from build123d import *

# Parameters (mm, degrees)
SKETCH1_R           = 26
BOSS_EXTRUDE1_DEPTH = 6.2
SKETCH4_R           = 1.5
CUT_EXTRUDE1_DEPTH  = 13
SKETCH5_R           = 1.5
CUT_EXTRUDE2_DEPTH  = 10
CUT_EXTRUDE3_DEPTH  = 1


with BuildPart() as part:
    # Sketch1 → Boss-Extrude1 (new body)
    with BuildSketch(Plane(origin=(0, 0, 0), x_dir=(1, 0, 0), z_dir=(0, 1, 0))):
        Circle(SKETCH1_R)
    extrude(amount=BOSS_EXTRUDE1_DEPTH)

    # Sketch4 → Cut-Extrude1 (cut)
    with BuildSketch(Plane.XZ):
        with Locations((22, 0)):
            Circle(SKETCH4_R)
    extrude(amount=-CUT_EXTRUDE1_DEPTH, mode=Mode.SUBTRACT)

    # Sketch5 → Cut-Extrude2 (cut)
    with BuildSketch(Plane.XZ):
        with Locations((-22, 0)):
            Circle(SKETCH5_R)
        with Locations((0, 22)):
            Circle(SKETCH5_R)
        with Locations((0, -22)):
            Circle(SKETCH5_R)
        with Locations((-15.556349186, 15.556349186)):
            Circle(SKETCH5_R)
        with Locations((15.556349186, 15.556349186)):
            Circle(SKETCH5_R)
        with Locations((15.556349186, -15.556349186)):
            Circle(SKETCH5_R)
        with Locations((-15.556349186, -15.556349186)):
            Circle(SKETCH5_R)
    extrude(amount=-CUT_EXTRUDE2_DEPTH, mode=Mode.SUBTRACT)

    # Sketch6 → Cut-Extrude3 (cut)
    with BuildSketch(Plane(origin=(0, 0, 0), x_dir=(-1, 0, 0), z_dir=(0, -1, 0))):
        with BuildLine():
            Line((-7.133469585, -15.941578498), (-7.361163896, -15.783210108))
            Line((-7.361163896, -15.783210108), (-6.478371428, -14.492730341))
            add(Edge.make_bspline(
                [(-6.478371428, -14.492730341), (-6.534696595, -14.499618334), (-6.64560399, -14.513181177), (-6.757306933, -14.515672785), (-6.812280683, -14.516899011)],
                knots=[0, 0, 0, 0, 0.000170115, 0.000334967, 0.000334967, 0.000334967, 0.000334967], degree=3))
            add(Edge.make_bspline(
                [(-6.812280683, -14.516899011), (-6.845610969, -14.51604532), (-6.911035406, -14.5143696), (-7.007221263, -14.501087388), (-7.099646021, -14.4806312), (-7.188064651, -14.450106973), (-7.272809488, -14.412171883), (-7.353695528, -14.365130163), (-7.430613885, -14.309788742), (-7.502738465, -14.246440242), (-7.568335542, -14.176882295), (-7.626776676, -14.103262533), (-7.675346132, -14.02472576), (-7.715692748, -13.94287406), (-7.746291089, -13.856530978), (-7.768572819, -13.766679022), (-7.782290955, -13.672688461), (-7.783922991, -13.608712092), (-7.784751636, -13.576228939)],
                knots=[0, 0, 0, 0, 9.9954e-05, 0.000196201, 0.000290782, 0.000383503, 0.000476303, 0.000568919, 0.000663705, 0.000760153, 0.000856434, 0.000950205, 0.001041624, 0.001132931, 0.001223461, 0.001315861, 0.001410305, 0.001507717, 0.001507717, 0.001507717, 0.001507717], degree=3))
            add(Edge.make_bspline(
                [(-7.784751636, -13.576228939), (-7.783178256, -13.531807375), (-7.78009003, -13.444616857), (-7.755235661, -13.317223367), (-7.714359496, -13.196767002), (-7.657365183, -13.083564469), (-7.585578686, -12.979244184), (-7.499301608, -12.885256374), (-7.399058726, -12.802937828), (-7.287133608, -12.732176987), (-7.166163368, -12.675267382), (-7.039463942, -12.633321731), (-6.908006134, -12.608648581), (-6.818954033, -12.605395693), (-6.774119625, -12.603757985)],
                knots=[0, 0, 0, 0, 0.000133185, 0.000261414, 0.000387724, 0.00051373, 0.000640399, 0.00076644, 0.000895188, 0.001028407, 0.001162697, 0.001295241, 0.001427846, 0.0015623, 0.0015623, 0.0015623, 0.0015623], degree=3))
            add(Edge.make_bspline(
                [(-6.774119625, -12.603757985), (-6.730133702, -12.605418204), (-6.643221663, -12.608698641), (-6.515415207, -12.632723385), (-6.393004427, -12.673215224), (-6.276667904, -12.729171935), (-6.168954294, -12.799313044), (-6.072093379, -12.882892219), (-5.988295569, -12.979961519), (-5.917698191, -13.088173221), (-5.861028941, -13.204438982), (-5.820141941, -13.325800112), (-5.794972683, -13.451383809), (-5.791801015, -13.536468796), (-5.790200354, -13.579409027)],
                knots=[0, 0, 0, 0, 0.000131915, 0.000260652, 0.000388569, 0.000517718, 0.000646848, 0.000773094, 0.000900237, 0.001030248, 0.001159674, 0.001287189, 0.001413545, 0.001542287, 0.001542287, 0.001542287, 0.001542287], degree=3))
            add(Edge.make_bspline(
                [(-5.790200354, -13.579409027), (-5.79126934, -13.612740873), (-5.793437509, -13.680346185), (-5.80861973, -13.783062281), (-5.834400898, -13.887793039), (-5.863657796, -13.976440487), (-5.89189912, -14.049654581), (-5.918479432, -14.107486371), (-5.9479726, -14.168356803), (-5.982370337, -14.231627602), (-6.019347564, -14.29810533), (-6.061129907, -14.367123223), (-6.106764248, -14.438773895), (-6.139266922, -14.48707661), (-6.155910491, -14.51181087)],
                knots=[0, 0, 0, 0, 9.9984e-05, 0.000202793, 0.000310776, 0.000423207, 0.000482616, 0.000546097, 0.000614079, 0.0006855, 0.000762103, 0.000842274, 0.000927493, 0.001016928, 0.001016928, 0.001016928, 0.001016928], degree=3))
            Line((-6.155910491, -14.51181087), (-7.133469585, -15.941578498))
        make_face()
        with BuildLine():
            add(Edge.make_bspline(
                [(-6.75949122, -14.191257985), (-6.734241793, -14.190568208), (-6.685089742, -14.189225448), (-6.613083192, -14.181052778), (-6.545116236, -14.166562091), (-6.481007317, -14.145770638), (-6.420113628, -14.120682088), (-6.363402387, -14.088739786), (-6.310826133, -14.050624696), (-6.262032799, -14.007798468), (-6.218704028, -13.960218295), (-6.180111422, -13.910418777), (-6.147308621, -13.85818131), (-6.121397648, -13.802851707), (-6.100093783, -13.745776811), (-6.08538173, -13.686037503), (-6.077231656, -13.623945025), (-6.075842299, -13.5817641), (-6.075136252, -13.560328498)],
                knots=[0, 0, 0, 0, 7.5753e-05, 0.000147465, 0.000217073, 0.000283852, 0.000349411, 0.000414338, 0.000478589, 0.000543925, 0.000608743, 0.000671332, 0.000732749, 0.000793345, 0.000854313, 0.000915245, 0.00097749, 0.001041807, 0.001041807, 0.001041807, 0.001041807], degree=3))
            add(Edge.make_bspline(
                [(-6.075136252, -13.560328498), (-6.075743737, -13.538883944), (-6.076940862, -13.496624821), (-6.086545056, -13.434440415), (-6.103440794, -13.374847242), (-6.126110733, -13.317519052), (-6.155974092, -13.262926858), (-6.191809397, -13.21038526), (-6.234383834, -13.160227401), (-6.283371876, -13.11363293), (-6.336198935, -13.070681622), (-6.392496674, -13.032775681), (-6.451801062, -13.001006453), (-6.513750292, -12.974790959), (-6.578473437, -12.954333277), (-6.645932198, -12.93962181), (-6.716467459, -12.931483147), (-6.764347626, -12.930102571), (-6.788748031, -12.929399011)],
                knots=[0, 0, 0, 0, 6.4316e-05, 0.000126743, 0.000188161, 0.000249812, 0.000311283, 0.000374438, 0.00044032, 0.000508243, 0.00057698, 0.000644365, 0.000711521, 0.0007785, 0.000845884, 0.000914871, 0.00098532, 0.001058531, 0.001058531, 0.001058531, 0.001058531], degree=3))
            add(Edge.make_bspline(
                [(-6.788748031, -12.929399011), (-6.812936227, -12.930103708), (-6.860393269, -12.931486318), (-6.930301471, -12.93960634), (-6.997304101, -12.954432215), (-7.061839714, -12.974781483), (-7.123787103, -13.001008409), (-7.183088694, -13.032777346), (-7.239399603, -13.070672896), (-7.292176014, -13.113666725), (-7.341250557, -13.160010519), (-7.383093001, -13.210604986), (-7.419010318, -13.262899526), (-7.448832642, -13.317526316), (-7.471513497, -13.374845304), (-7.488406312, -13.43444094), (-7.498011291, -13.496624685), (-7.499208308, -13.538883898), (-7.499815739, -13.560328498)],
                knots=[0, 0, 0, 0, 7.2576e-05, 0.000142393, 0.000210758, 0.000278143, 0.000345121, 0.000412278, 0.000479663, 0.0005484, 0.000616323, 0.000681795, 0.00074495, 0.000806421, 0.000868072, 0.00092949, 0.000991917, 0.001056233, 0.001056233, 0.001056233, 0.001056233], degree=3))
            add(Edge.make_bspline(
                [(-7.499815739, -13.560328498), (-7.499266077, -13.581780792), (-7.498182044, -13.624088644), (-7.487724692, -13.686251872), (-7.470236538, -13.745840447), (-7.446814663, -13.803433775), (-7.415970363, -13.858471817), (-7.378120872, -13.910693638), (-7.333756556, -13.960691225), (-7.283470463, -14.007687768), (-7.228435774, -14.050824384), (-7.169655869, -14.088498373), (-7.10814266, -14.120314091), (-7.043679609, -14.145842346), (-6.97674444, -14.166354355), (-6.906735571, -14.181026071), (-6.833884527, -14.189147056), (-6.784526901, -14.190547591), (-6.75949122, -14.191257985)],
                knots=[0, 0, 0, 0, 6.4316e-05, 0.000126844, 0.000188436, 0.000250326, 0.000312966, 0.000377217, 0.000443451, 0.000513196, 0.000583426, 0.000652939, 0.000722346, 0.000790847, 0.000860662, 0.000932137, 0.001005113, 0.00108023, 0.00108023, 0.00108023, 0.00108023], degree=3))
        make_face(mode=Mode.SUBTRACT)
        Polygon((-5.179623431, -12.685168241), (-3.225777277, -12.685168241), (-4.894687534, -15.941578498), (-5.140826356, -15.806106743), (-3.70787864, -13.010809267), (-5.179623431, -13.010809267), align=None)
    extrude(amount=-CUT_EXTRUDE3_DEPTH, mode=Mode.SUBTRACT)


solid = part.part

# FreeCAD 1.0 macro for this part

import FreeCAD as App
import Part
import Sketcher
from FreeCAD import Vector
Q = App.Units.Quantity

doc = App.newDocument("Part")
body = doc.addObject("PartDesign::Body", "Body")

sketch1 = body.newObject("Sketcher::SketchObject", "Sketch")
sketch1.AttachmentSupport = (doc.getObject("XZ_Plane"), [""])
sketch1.MapMode = "FlatFace"
sketch1.addGeometry(Part.Circle(Vector(0, 0, 0), Vector(0, 0, 1), 26), False)
sketch1.addConstraint([
    Sketcher.Constraint("Coincident", 0, 3, -1, 1),
    Sketcher.Constraint("Diameter", 0, Q("52 mm")),
])
pad1 = body.newObject("PartDesign::Pad", "Pad")
pad1.Profile = sketch1
pad1.Length = 6.2
pad1.Reversed = True

sketch2 = body.newObject("Sketcher::SketchObject", "Sketch001")
sketch2.AttachmentSupport = (doc.getObject("XZ_Plane"), [""])
sketch2.MapMode = "FlatFace"
sketch2.addGeometry(Part.Circle(Vector(22, 0, 0), Vector(0, 0, 1), 1.5), False)
sketch2.addConstraint([
    Sketcher.Constraint("PointOnObject", 0, 3, -1),
    Sketcher.Constraint("Diameter", 0, Q("3 mm")),
    Sketcher.Constraint("DistanceX", -1, 1, 0, 3, Q("22 mm")),
])
pocket1 = body.newObject("PartDesign::Pocket", "Pocket")
pocket1.Profile = sketch2
pocket1.Length = 13

sketch3 = body.newObject("Sketcher::SketchObject", "Sketch002")
sketch3.AttachmentSupport = (doc.getObject("XZ_Plane"), [""])
sketch3.MapMode = "FlatFace"
sketch3.addGeometry([
    Part.Circle(Vector(-22, 0, 0), Vector(0, 0, 1), 1.5),
    Part.Circle(Vector(0, 22, 0), Vector(0, 0, 1), 1.5),
    Part.Circle(Vector(0, -22, 0), Vector(0, 0, 1), 1.5),
    Part.Circle(Vector(-15.6, 15.6, 0), Vector(0, 0, 1), 1.5),
    Part.Circle(Vector(15.6, 15.6, 0), Vector(0, 0, 1), 1.5),
    Part.Circle(Vector(15.6, -15.6, 0), Vector(0, 0, 1), 1.5),
    Part.Circle(Vector(-15.6, -15.6, 0), Vector(0, 0, 1), 1.5),
], False)
sketch3.addConstraint([
    Sketcher.Constraint("Equal", 0, 1),
    Sketcher.Constraint("Equal", 1, 2),
    Sketcher.Constraint("Equal", 2, 3),
    Sketcher.Constraint("Equal", 3, 4),
    Sketcher.Constraint("Equal", 4, 5),
    Sketcher.Constraint("Equal", 5, 6),
    Sketcher.Constraint("Symmetric", 1, 3, 2, 3, -1, 1),
    Sketcher.Constraint("Symmetric", 3, 3, 5, 3, -1, 1),
    Sketcher.Constraint("Symmetric", 4, 3, 6, 3, -1, 1),
    Sketcher.Constraint("Symmetric", 3, 3, 4, 3, -2),
    Sketcher.Constraint("PointOnObject", 0, 3, -1),
    Sketcher.Constraint("PointOnObject", 1, 3, -2),
    Sketcher.Constraint("Diameter", 0, Q("3 mm")),
    Sketcher.Constraint("DistanceX", 0, 3, -1, 1, Q("22 mm")),
    Sketcher.Constraint("DistanceY", -1, 1, 1, 3, Q("22 mm")),
    Sketcher.Constraint("DistanceX", 3, 3, 4, 3, Q("31.112698 mm")),
    Sketcher.Constraint("DistanceY", 5, 3, 4, 3, Q("31.112698 mm")),
])
pocket2 = body.newObject("PartDesign::Pocket", "Pocket001")
pocket2.Profile = sketch3
pocket2.Length = 10

sketch4 = body.newObject("Sketcher::SketchObject", "Sketch003")
sketch4.AttachmentSupport = (doc.getObject("XZ_Plane"), [""])
sketch4.MapMode = "FlatFace"
sketch4.addGeometry([
    Part.LineSegment(Vector(7.361164, 15.78321, 0), Vector(7.13347, 15.941578, 0)),
    Part.LineSegment(Vector(7.13347, 15.941578, 0), Vector(6.15591, 14.511811, 0)),
    Part.BSplineCurve([Vector(5.7902, 13.579409, 0), Vector(5.791269, 13.612741, 0), Vector(5.793438, 13.680346, 0), Vector(5.80862, 13.783062, 0), Vector(5.834401, 13.887793, 0), Vector(5.863658, 13.97644, 0), Vector(5.891899, 14.049655, 0), Vector(5.918479, 14.107486, 0), Vector(5.947973, 14.168357, 0), Vector(5.98237, 14.231628, 0), Vector(6.019348, 14.298105, 0), Vector(6.06113, 14.367123, 0), Vector(6.106764, 14.438774, 0), Vector(6.139267, 14.487077, 0), Vector(6.15591, 14.511811, 0)], [4, 1, 1, 1, 1, 1, 1, 1, 1, 1, 1, 1, 4], [0, 0.000099984, 0.000202793, 0.000310776, 0.000423207, 0.000482616, 0.000546097, 0.000614079, 0.0006855, 0.000762103, 0.000842274, 0.000927493, 0.001016928], False, 3, [1, 1, 1, 1, 1, 1, 1, 1, 1, 1, 1, 1, 1, 1, 1], False),
    Part.BSplineCurve([Vector(6.77412, 12.603758, 0), Vector(6.730134, 12.605418, 0), Vector(6.643222, 12.608699, 0), Vector(6.515415, 12.632723, 0), Vector(6.393004, 12.673215, 0), Vector(6.276668, 12.729172, 0), Vector(6.168954, 12.799313, 0), Vector(6.072093, 12.882892, 0), Vector(5.988296, 12.979962, 0), Vector(5.917698, 13.088173, 0), Vector(5.861029, 13.204439, 0), Vector(5.820142, 13.3258, 0), Vector(5.794973, 13.451384, 0), Vector(5.791801, 13.536469, 0), Vector(5.7902, 13.579409, 0)], [4, 1, 1, 1, 1, 1, 1, 1, 1, 1, 1, 1, 4], [0, 0.000131915, 0.000260652, 0.000388569, 0.000517718, 0.000646848, 0.000773094, 0.000900237, 0.001030248, 0.001159674, 0.001287189, 0.001413545, 0.001542287], False, 3, [1, 1, 1, 1, 1, 1, 1, 1, 1, 1, 1, 1, 1, 1, 1], False),
    Part.BSplineCurve([Vector(7.784752, 13.576229, 0), Vector(7.783178, 13.531807, 0), Vector(7.78009, 13.444617, 0), Vector(7.755236, 13.317223, 0), Vector(7.714359, 13.196767, 0), Vector(7.657365, 13.083564, 0), Vector(7.585579, 12.979244, 0), Vector(7.499302, 12.885256, 0), Vector(7.399059, 12.802938, 0), Vector(7.287134, 12.732177, 0), Vector(7.166163, 12.675267, 0), Vector(7.039464, 12.633322, 0), Vector(6.908006, 12.608649, 0), Vector(6.818954, 12.605396, 0), Vector(6.77412, 12.603758, 0)], [4, 1, 1, 1, 1, 1, 1, 1, 1, 1, 1, 1, 4], [0, 0.000133185, 0.000261414, 0.000387724, 0.00051373, 0.000640399, 0.00076644, 0.000895188, 0.001028407, 0.001162697, 0.001295241, 0.001427846, 0.0015623], False, 3, [1, 1, 1, 1, 1, 1, 1, 1, 1, 1, 1, 1, 1, 1, 1], False),
    Part.BSplineCurve([Vector(6.812281, 14.516899, 0), Vector(6.845611, 14.516045, 0), Vector(6.911035, 14.51437, 0), Vector(7.007221, 14.501087, 0), Vector(7.099646, 14.480631, 0), Vector(7.188065, 14.450107, 0), Vector(7.272809, 14.412172, 0), Vector(7.353696, 14.36513, 0), Vector(7.430614, 14.309789, 0), Vector(7.502738, 14.24644, 0), Vector(7.568336, 14.176882, 0), Vector(7.626777, 14.103263, 0), Vector(7.675346, 14.024726, 0), Vector(7.715693, 13.942874, 0), Vector(7.746291, 13.856531, 0), Vector(7.768573, 13.766679, 0), Vector(7.782291, 13.672688, 0), Vector(7.783923, 13.608712, 0), Vector(7.784752, 13.576229, 0)], [4, 1, 1, 1, 1, 1, 1, 1, 1, 1, 1, 1, 1, 1, 1, 1, 4], [0, 0.000099954, 0.000196201, 0.000290782, 0.000383503, 0.000476303, 0.000568919, 0.000663705, 0.000760153, 0.000856434, 0.000950205, 0.001041624, 0.001132931, 0.001223461, 0.001315861, 0.001410305, 0.001507717], False, 3, [1, 1, 1, 1, 1, 1, 1, 1, 1, 1, 1, 1, 1, 1, 1, 1, 1, 1, 1], False),
    Part.BSplineCurve([Vector(6.478371, 14.49273, 0), Vector(6.534697, 14.499618, 0), Vector(6.645604, 14.513181, 0), Vector(6.757307, 14.515673, 0), Vector(6.812281, 14.516899, 0)], [4, 1, 4], [0, 0.000170115, 0.000334967], False, 3, [1, 1, 1, 1, 1], False),
    Part.LineSegment(Vector(6.478371, 14.49273, 0), Vector(7.361164, 15.78321, 0)),
    Part.BSplineCurve([Vector(7.499816, 13.560328, 0), Vector(7.499266, 13.581781, 0), Vector(7.498182, 13.624089, 0), Vector(7.487725, 13.686252, 0), Vector(7.470237, 13.74584, 0), Vector(7.446815, 13.803434, 0), Vector(7.41597, 13.858472, 0), Vector(7.378121, 13.910694, 0), Vector(7.333757, 13.960691, 0), Vector(7.28347, 14.007688, 0), Vector(7.228436, 14.050824, 0), Vector(7.169656, 14.088498, 0), Vector(7.108143, 14.120314, 0), Vector(7.04368, 14.145842, 0), Vector(6.976744, 14.166354, 0), Vector(6.906736, 14.181026, 0), Vector(6.833885, 14.189147, 0), Vector(6.784527, 14.190548, 0), Vector(6.759491, 14.191258, 0)], [4, 1, 1, 1, 1, 1, 1, 1, 1, 1, 1, 1, 1, 1, 1, 1, 4], [0, 0.000064316, 0.000126844, 0.000188436, 0.000250326, 0.000312966, 0.000377217, 0.000443451, 0.000513196, 0.000583426, 0.000652939, 0.000722346, 0.000790847, 0.000860662, 0.000932137, 0.001005113, 0.00108023], False, 3, [1, 1, 1, 1, 1, 1, 1, 1, 1, 1, 1, 1, 1, 1, 1, 1, 1, 1, 1], False),
    Part.BSplineCurve([Vector(6.788748, 12.929399, 0), Vector(6.812936, 12.930104, 0), Vector(6.860393, 12.931486, 0), Vector(6.930301, 12.939606, 0), Vector(6.997304, 12.954432, 0), Vector(7.06184, 12.974781, 0), Vector(7.123787, 13.001008, 0), Vector(7.183089, 13.032777, 0), Vector(7.2394, 13.070673, 0), Vector(7.292176, 13.113667, 0), Vector(7.341251, 13.160011, 0), Vector(7.383093, 13.210605, 0), Vector(7.41901, 13.2629, 0), Vector(7.448833, 13.317526, 0), Vector(7.471513, 13.374845, 0), Vector(7.488406, 13.434441, 0), Vector(7.498011, 13.496625, 0), Vector(7.499208, 13.538884, 0), Vector(7.499816, 13.560328, 0)], [4, 1, 1, 1, 1, 1, 1, 1, 1, 1, 1, 1, 1, 1, 1, 1, 4], [0, 0.000072576, 0.000142393, 0.000210758, 0.000278143, 0.000345121, 0.000412278, 0.000479663, 0.0005484, 0.000616323, 0.000681795, 0.00074495, 0.000806421, 0.000868072, 0.00092949, 0.000991917, 0.001056233], False, 3, [1, 1, 1, 1, 1, 1, 1, 1, 1, 1, 1, 1, 1, 1, 1, 1, 1, 1, 1], False),
    Part.BSplineCurve([Vector(6.075136, 13.560328, 0), Vector(6.075744, 13.538884, 0), Vector(6.076941, 13.496625, 0), Vector(6.086545, 13.43444, 0), Vector(6.103441, 13.374847, 0), Vector(6.126111, 13.317519, 0), Vector(6.155974, 13.262927, 0), Vector(6.191809, 13.210385, 0), Vector(6.234384, 13.160227, 0), Vector(6.283372, 13.113633, 0), Vector(6.336199, 13.070682, 0), Vector(6.392497, 13.032776, 0), Vector(6.451801, 13.001006, 0), Vector(6.51375, 12.974791, 0), Vector(6.578473, 12.954333, 0), Vector(6.645932, 12.939622, 0), Vector(6.716467, 12.931483, 0), Vector(6.764348, 12.930103, 0), Vector(6.788748, 12.929399, 0)], [4, 1, 1, 1, 1, 1, 1, 1, 1, 1, 1, 1, 1, 1, 1, 1, 4], [0, 0.000064316, 0.000126743, 0.000188161, 0.000249812, 0.000311283, 0.000374438, 0.00044032, 0.000508243, 0.00057698, 0.000644365, 0.000711521, 0.0007785, 0.000845884, 0.000914871, 0.00098532, 0.001058531], False, 3, [1, 1, 1, 1, 1, 1, 1, 1, 1, 1, 1, 1, 1, 1, 1, 1, 1, 1, 1], False),
    Part.BSplineCurve([Vector(6.759491, 14.191258, 0), Vector(6.734242, 14.190568, 0), Vector(6.68509, 14.189225, 0), Vector(6.613083, 14.181053, 0), Vector(6.545116, 14.166562, 0), Vector(6.481007, 14.145771, 0), Vector(6.420114, 14.120682, 0), Vector(6.363402, 14.08874, 0), Vector(6.310826, 14.050625, 0), Vector(6.262033, 14.007798, 0), Vector(6.218704, 13.960218, 0), Vector(6.180111, 13.910419, 0), Vector(6.147309, 13.858181, 0), Vector(6.121398, 13.802852, 0), Vector(6.100094, 13.745777, 0), Vector(6.085382, 13.686038, 0), Vector(6.077232, 13.623945, 0), Vector(6.075842, 13.581764, 0), Vector(6.075136, 13.560328, 0)], [4, 1, 1, 1, 1, 1, 1, 1, 1, 1, 1, 1, 1, 1, 1, 1, 4], [0, 0.000075753, 0.000147465, 0.000217073, 0.000283852, 0.000349411, 0.000414338, 0.000478589, 0.000543925, 0.000608743, 0.000671332, 0.000732749, 0.000793345, 0.000854313, 0.000915245, 0.00097749, 0.001041807], False, 3, [1, 1, 1, 1, 1, 1, 1, 1, 1, 1, 1, 1, 1, 1, 1, 1, 1, 1, 1], False),
    Part.LineSegment(Vector(3.225777, 12.685168, 0), Vector(5.179623, 12.685168, 0)),
    Part.LineSegment(Vector(5.179623, 12.685168, 0), Vector(5.179623, 13.010809, 0)),
    Part.LineSegment(Vector(5.179623, 13.010809, 0), Vector(3.707879, 13.010809, 0)),
    Part.LineSegment(Vector(3.707879, 13.010809, 0), Vector(5.140826, 15.806107, 0)),
    Part.LineSegment(Vector(5.140826, 15.806107, 0), Vector(4.894688, 15.941578, 0)),
    Part.LineSegment(Vector(4.894688, 15.941578, 0), Vector(3.225777, 12.685168, 0)),
], False)
sketch4.addConstraint([
    Sketcher.Constraint("Block", 2),
    Sketcher.Constraint("Block", 3),
    Sketcher.Constraint("Block", 4),
    Sketcher.Constraint("Block", 5),
    Sketcher.Constraint("Block", 6),
    Sketcher.Constraint("Block", 8),
    Sketcher.Constraint("Block", 9),
    Sketcher.Constraint("Block", 10),
    Sketcher.Constraint("Block", 11),
    Sketcher.Constraint("Coincident", 0, 2, 1, 1),
    Sketcher.Constraint("Coincident", 1, 2, 2, 2),
    Sketcher.Constraint("Coincident", 6, 1, 7, 1),
    Sketcher.Constraint("Coincident", 7, 2, 0, 1),
    Sketcher.Constraint("Coincident", 12, 2, 13, 1),
    Sketcher.Constraint("Coincident", 13, 2, 14, 1),
    Sketcher.Constraint("Coincident", 14, 2, 15, 1),
    Sketcher.Constraint("Coincident", 15, 2, 16, 1),
    Sketcher.Constraint("Coincident", 16, 2, 17, 1),
    Sketcher.Constraint("Coincident", 17, 2, 12, 1),
    Sketcher.Constraint("Horizontal", 12),
    Sketcher.Constraint("Vertical", 13),
    Sketcher.Constraint("Horizontal", 14),
    Sketcher.Constraint("Horizontal", 0, 2, 16, 2),
    Sketcher.Constraint("DistanceY", 13, 2, 1, 2, Q("1.501002 mm")),
    Sketcher.Constraint("DistanceY", 13, 1, 13, 2, Q("0.325641 mm")),
    Sketcher.Constraint("DistanceY", 1, 2, 7, 2, Q("1.271399 mm")),
    Sketcher.Constraint("DistanceX", 17, 2, 14, 2, Q("0.482101 mm")),
    Sketcher.Constraint("Distance", 1, Q("1.73201 mm")),
    Sketcher.Constraint("Distance", 7, Q("1.563541 mm")),
    Sketcher.Constraint("DistanceX", 12, 1, 12, 2, Q("1.953846 mm")),
    Sketcher.Constraint("DistanceX", -1, 1, 0, 2, Q("7.13347 mm")),
    Sketcher.Constraint("DistanceX", -1, 1, 14, 2, Q("3.707879 mm")),
    Sketcher.Constraint("DistanceY", 15, 2, 0, 2, Q("0.135472 mm")),
    Sketcher.Constraint("DistanceX", 16, 2, 15, 2, Q("0.246139 mm")),
    Sketcher.Constraint("DistanceX", 17, 2, 16, 2, Q("1.66891 mm")),
])
pocket3 = body.newObject("PartDesign::Pocket", "Pocket002")
pocket3.Profile = sketch4
pocket3.Length = 1

doc.recompute()
